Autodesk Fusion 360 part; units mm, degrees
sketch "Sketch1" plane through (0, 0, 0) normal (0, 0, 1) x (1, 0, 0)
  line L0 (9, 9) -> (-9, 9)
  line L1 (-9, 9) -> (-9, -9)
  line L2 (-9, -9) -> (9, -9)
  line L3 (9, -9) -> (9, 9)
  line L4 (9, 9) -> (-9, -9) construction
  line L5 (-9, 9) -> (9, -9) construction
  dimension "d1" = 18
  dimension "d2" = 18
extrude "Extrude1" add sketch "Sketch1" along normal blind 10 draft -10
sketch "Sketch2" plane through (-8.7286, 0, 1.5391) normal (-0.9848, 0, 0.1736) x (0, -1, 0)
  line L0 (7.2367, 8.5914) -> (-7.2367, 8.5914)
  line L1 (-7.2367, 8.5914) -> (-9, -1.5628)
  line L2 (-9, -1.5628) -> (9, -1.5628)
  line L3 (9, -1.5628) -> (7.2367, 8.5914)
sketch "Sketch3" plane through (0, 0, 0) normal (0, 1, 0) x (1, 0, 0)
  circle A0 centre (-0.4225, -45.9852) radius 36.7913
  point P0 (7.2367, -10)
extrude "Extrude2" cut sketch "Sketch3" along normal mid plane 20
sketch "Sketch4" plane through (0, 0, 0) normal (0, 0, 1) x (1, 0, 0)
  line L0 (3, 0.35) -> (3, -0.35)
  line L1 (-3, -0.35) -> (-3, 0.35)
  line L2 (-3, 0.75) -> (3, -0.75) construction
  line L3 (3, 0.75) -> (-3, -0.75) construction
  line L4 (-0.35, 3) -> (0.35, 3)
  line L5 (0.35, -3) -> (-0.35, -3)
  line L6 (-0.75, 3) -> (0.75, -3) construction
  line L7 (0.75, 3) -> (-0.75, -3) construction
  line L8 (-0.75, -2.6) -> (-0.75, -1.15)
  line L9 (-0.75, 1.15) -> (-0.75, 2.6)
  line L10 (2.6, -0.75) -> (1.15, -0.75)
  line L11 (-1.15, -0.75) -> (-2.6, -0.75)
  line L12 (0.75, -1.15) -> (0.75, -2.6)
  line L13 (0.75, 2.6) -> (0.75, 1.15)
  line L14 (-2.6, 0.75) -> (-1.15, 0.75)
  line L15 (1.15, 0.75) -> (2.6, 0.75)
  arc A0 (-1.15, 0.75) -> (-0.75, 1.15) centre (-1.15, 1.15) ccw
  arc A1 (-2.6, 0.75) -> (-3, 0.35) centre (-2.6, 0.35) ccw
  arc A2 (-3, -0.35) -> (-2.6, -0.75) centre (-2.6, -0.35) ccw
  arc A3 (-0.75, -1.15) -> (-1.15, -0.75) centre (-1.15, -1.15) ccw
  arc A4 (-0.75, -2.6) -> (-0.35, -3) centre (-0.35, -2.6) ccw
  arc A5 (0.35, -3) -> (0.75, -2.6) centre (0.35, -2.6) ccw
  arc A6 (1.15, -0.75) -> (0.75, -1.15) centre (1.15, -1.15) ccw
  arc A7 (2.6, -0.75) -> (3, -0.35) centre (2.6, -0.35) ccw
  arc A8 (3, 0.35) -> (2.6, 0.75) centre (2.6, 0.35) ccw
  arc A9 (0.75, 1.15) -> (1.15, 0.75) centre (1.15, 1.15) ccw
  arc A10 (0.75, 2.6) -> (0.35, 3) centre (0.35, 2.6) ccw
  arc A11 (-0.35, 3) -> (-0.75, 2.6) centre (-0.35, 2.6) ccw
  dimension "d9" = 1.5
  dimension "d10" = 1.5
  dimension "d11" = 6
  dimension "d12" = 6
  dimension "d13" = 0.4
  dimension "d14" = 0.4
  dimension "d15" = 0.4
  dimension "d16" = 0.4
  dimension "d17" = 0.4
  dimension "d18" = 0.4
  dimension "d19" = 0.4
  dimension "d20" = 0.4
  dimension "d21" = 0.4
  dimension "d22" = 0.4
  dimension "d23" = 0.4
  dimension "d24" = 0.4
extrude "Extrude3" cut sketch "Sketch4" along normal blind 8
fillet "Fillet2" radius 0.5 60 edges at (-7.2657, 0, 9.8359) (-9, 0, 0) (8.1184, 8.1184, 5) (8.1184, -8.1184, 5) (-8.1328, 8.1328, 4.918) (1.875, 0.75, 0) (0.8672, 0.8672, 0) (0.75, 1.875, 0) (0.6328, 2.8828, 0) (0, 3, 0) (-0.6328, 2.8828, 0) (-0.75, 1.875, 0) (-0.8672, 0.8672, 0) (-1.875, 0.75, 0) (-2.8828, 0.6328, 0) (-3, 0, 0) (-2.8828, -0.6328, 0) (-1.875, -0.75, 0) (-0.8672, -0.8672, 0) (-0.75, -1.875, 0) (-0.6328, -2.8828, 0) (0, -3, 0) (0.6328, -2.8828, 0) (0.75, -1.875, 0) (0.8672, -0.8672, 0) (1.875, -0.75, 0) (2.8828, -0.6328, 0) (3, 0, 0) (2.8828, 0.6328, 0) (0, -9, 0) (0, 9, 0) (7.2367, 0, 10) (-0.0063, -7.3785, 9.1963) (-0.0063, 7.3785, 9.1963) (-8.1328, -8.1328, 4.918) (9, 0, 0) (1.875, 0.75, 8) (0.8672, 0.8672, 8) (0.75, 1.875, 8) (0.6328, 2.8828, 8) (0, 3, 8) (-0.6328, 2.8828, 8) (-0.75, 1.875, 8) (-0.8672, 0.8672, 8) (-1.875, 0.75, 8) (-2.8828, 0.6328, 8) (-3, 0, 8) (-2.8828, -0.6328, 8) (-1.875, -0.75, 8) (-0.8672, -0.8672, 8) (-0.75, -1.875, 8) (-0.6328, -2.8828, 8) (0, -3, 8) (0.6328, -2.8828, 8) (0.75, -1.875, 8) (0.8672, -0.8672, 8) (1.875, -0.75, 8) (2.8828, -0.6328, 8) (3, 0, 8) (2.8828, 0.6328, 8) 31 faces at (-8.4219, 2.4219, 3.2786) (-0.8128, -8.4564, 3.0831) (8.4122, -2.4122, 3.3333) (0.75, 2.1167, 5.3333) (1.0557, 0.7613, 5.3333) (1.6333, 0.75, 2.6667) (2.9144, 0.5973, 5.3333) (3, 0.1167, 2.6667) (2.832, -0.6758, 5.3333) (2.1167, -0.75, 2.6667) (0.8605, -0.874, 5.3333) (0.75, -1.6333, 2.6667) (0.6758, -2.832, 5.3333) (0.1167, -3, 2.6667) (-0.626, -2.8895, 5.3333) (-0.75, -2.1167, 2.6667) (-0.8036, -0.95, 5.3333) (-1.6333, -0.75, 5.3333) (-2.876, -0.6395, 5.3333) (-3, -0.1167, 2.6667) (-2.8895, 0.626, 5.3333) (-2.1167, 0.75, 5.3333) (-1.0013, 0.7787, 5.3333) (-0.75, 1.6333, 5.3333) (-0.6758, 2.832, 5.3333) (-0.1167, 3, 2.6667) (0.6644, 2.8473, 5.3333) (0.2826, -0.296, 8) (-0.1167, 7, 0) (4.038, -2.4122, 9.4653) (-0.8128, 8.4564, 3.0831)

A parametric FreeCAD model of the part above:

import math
import FreeCAD as App
import Part
import Sketcher


def add_polygon(sketch, points):
    """Adds a closed chain of lines whose ends are joined by coincident constraints."""
    first, n = sketch.GeometryCount, len(points)
    for a, b in zip(points, points[1:] + points[:1]):
        sketch.addGeometry(Part.LineSegment(App.Vector(*a, 0), App.Vector(*b, 0)), False)
    for i in range(n):
        sketch.addConstraint(Sketcher.Constraint("Coincident", first + i, 2, first + (i + 1) % n, 1))

doc = App.newDocument("Part")
body = doc.addObject("PartDesign::Body", "Body")

sketch1 = doc.addObject("Sketcher::SketchObject", "Sketch")
body.addObject(sketch1)
sketch1.AttachmentSupport = (doc.XY_Plane, [""])
sketch1.MapMode = "FlatFace"
add_polygon(sketch1, [(9, -9), (9, 9), (-9, 9), (-9, -9)])
sketch1.addConstraint([
    Sketcher.Constraint("Vertical", 0),
    Sketcher.Constraint("Horizontal", 1),
    Sketcher.Constraint("Vertical", 2),
    Sketcher.Constraint("Horizontal", 3),
    Sketcher.Constraint("Symmetric", 0, 2, 2, 2, -1, 1),
    Sketcher.Constraint("Equal", 3, 0),
    Sketcher.Constraint("DistanceX", 1, 2, 1, 1, 18.0),
])
pad1 = doc.addObject("PartDesign::Pad", "Pad")
body.addObject(pad1)
pad1.Profile = sketch1
pad1.Length = 10
pad1.TaperAngle = -10

sketch2 = doc.addObject("Sketcher::SketchObject", "Sketch001")
body.addObject(sketch2)
sketch2.AttachmentSupport = (doc.XZ_Plane, [""])
sketch2.MapMode = "FlatFace"
sketch2.addGeometry(Part.Circle(App.Vector(0, 46, 0), App.Vector(0, 0, 1), 37), False)
sketch2.addConstraint([
    Sketcher.Constraint("Diameter", 0, 73.5826),
    Sketcher.Constraint("DistanceX", 0, 3, -1, 1, 0.4225),
    Sketcher.Constraint("DistanceY", -1, 1, 0, 3, 45.9852),
])
pocket1 = doc.addObject("PartDesign::Pocket", "Pocket")
body.addObject(pocket1)
pocket1.Profile = sketch2
pocket1.Length = 20
pocket1.Midplane = True

sketch3 = doc.addObject("Sketcher::SketchObject", "Sketch002")
body.addObject(sketch3)
sketch3.AttachmentSupport = (doc.XY_Plane, [""])
sketch3.MapMode = "FlatFace"
sketch3.addGeometry([
    Part.LineSegment(App.Vector(3, -0.35, 0), App.Vector(3, 0.35, 0)),
    Part.ArcOfCircle(Part.Circle(App.Vector(2.6, 0.35, 0), App.Vector(0, 0, 1), 0.4), math.radians(0), math.radians(90)),
    Part.LineSegment(App.Vector(2.6, 0.75, 0), App.Vector(1.15, 0.75, 0)),
    Part.ArcOfCircle(Part.Circle(App.Vector(1.15, 1.15, 0), App.Vector(0, 0, 1), 0.4), math.radians(180), math.radians(270)),
    Part.LineSegment(App.Vector(0.75, 1.15, 0), App.Vector(0.75, 2.6, 0)),
    Part.ArcOfCircle(Part.Circle(App.Vector(0.35, 2.6, 0), App.Vector(0, 0, 1), 0.4), math.radians(0), math.radians(90)),
    Part.LineSegment(App.Vector(0.35, 3, 0), App.Vector(-0.35, 3, 0)),
    Part.ArcOfCircle(Part.Circle(App.Vector(-0.35, 2.6, 0), App.Vector(0, 0, 1), 0.4), math.radians(90), math.radians(180)),
    Part.LineSegment(App.Vector(-0.75, 2.6, 0), App.Vector(-0.75, 1.15, 0)),
    Part.ArcOfCircle(Part.Circle(App.Vector(-1.15, 1.15, 0), App.Vector(0, 0, 1), 0.4), math.radians(-90), math.radians(0)),
    Part.LineSegment(App.Vector(-1.15, 0.75, 0), App.Vector(-2.6, 0.75, 0)),
    Part.ArcOfCircle(Part.Circle(App.Vector(-2.6, 0.35, 0), App.Vector(0, 0, 1), 0.4), math.radians(90), math.radians(180)),
    Part.LineSegment(App.Vector(-3, 0.35, 0), App.Vector(-3, -0.35, 0)),
    Part.ArcOfCircle(Part.Circle(App.Vector(-2.6, -0.35, 0), App.Vector(0, 0, 1), 0.4), math.radians(180), math.radians(270)),
    Part.LineSegment(App.Vector(-2.6, -0.75, 0), App.Vector(-1.15, -0.75, 0)),
    Part.ArcOfCircle(Part.Circle(App.Vector(-1.15, -1.15, 0), App.Vector(0, 0, 1), 0.4), math.radians(0), math.radians(90)),
    Part.LineSegment(App.Vector(-0.75, -1.15, 0), App.Vector(-0.75, -2.6, 0)),
    Part.ArcOfCircle(Part.Circle(App.Vector(-0.35, -2.6, 0), App.Vector(0, 0, 1), 0.4), math.radians(180), math.radians(270)),
    Part.LineSegment(App.Vector(-0.35, -3, 0), App.Vector(0.35, -3, 0)),
    Part.ArcOfCircle(Part.Circle(App.Vector(0.35, -2.6, 0), App.Vector(0, 0, 1), 0.4), math.radians(-90), math.radians(0)),
    Part.LineSegment(App.Vector(0.75, -2.6, 0), App.Vector(0.75, -1.15, 0)),
    Part.ArcOfCircle(Part.Circle(App.Vector(1.15, -1.15, 0), App.Vector(0, 0, 1), 0.4), math.radians(90), math.radians(180)),
    Part.LineSegment(App.Vector(1.15, -0.75, 0), App.Vector(2.6, -0.75, 0)),
    Part.ArcOfCircle(Part.Circle(App.Vector(2.6, -0.35, 0), App.Vector(0, 0, 1), 0.4), math.radians(-90), math.radians(0)),
], False)
sketch3.addConstraint([
    Sketcher.Constraint("Tangent", 0, 2, 1, 1),
    Sketcher.Constraint("Tangent", 1, 2, 2, 1),
    Sketcher.Constraint("Tangent", 2, 2, 3, 2),
    Sketcher.Constraint("Tangent", 3, 1, 4, 1),
    Sketcher.Constraint("Tangent", 4, 2, 5, 1),
    Sketcher.Constraint("Tangent", 5, 2, 6, 1),
    Sketcher.Constraint("Tangent", 6, 2, 7, 1),
    Sketcher.Constraint("Tangent", 7, 2, 8, 1),
    Sketcher.Constraint("Tangent", 8, 2, 9, 2),
    Sketcher.Constraint("Tangent", 9, 1, 10, 1),
    Sketcher.Constraint("Tangent", 10, 2, 11, 1),
    Sketcher.Constraint("Tangent", 11, 2, 12, 1),
    Sketcher.Constraint("Tangent", 12, 2, 13, 1),
    Sketcher.Constraint("Tangent", 13, 2, 14, 1),
    Sketcher.Constraint("Tangent", 14, 2, 15, 2),
    Sketcher.Constraint("Tangent", 15, 1, 16, 1),
    Sketcher.Constraint("Tangent", 16, 2, 17, 1),
    Sketcher.Constraint("Tangent", 17, 2, 18, 1),
    Sketcher.Constraint("Tangent", 18, 2, 19, 1),
    Sketcher.Constraint("Tangent", 19, 2, 20, 1),
    Sketcher.Constraint("Tangent", 20, 2, 21, 2),
    Sketcher.Constraint("Tangent", 21, 1, 22, 1),
    Sketcher.Constraint("Tangent", 22, 2, 23, 1),
    Sketcher.Constraint("Tangent", 23, 2, 0, 1),
    Sketcher.Constraint("Vertical", 0),
    Sketcher.Constraint("Horizontal", 2),
    Sketcher.Constraint("Vertical", 4),
    Sketcher.Constraint("Horizontal", 6),
    Sketcher.Constraint("Vertical", 8),
    Sketcher.Constraint("Horizontal", 10),
    Sketcher.Constraint("Vertical", 12),
    Sketcher.Constraint("Horizontal", 14),
    Sketcher.Constraint("Vertical", 16),
    Sketcher.Constraint("Horizontal", 18),
    Sketcher.Constraint("Vertical", 20),
    Sketcher.Constraint("Horizontal", 22),
    Sketcher.Constraint("Equal", 1, 3),
    Sketcher.Constraint("Equal", 3, 5),
    Sketcher.Constraint("Equal", 5, 7),
    Sketcher.Constraint("Equal", 7, 9),
    Sketcher.Constraint("Equal", 9, 11),
    Sketcher.Constraint("Equal", 11, 13),
    Sketcher.Constraint("Equal", 13, 15),
    Sketcher.Constraint("Equal", 15, 17),
    Sketcher.Constraint("Equal", 17, 19),
    Sketcher.Constraint("Equal", 19, 21),
    Sketcher.Constraint("Equal", 21, 23),
    Sketcher.Constraint("Symmetric", 1, 3, 13, 3, -1, 1),
    Sketcher.Constraint("Symmetric", 5, 3, 17, 3, -1, 1),
    Sketcher.Constraint("Symmetric", 9, 3, 21, 3, -1, 1),
    Sketcher.Constraint("Symmetric", 3, 3, 9, 3, -2),
    Sketcher.Constraint("Equal", 18, 0),
    Sketcher.Constraint("Equal", 22, 4),
    Sketcher.Constraint("Radius", 1, 0.4),
    Sketcher.Constraint("DistanceX", 7, 3, 3, 3, 1.5),
    Sketcher.Constraint("DistanceX", -1, 1, 0, 2, 3.0),
])
pocket2 = doc.addObject("PartDesign::Pocket", "Pocket001")
body.addObject(pocket2)
pocket2.Profile = sketch3
pocket2.Length = 8
pocket2.Reversed = True
doc.recompute()

fillet = doc.addObject("PartDesign::Fillet", "Fillet")
body.addObject(fillet)
fillet.Base = (pocket2, ["Edge1"])
fillet.UseAllEdges = True
fillet.Radius = 0.5

doc.recompute()
